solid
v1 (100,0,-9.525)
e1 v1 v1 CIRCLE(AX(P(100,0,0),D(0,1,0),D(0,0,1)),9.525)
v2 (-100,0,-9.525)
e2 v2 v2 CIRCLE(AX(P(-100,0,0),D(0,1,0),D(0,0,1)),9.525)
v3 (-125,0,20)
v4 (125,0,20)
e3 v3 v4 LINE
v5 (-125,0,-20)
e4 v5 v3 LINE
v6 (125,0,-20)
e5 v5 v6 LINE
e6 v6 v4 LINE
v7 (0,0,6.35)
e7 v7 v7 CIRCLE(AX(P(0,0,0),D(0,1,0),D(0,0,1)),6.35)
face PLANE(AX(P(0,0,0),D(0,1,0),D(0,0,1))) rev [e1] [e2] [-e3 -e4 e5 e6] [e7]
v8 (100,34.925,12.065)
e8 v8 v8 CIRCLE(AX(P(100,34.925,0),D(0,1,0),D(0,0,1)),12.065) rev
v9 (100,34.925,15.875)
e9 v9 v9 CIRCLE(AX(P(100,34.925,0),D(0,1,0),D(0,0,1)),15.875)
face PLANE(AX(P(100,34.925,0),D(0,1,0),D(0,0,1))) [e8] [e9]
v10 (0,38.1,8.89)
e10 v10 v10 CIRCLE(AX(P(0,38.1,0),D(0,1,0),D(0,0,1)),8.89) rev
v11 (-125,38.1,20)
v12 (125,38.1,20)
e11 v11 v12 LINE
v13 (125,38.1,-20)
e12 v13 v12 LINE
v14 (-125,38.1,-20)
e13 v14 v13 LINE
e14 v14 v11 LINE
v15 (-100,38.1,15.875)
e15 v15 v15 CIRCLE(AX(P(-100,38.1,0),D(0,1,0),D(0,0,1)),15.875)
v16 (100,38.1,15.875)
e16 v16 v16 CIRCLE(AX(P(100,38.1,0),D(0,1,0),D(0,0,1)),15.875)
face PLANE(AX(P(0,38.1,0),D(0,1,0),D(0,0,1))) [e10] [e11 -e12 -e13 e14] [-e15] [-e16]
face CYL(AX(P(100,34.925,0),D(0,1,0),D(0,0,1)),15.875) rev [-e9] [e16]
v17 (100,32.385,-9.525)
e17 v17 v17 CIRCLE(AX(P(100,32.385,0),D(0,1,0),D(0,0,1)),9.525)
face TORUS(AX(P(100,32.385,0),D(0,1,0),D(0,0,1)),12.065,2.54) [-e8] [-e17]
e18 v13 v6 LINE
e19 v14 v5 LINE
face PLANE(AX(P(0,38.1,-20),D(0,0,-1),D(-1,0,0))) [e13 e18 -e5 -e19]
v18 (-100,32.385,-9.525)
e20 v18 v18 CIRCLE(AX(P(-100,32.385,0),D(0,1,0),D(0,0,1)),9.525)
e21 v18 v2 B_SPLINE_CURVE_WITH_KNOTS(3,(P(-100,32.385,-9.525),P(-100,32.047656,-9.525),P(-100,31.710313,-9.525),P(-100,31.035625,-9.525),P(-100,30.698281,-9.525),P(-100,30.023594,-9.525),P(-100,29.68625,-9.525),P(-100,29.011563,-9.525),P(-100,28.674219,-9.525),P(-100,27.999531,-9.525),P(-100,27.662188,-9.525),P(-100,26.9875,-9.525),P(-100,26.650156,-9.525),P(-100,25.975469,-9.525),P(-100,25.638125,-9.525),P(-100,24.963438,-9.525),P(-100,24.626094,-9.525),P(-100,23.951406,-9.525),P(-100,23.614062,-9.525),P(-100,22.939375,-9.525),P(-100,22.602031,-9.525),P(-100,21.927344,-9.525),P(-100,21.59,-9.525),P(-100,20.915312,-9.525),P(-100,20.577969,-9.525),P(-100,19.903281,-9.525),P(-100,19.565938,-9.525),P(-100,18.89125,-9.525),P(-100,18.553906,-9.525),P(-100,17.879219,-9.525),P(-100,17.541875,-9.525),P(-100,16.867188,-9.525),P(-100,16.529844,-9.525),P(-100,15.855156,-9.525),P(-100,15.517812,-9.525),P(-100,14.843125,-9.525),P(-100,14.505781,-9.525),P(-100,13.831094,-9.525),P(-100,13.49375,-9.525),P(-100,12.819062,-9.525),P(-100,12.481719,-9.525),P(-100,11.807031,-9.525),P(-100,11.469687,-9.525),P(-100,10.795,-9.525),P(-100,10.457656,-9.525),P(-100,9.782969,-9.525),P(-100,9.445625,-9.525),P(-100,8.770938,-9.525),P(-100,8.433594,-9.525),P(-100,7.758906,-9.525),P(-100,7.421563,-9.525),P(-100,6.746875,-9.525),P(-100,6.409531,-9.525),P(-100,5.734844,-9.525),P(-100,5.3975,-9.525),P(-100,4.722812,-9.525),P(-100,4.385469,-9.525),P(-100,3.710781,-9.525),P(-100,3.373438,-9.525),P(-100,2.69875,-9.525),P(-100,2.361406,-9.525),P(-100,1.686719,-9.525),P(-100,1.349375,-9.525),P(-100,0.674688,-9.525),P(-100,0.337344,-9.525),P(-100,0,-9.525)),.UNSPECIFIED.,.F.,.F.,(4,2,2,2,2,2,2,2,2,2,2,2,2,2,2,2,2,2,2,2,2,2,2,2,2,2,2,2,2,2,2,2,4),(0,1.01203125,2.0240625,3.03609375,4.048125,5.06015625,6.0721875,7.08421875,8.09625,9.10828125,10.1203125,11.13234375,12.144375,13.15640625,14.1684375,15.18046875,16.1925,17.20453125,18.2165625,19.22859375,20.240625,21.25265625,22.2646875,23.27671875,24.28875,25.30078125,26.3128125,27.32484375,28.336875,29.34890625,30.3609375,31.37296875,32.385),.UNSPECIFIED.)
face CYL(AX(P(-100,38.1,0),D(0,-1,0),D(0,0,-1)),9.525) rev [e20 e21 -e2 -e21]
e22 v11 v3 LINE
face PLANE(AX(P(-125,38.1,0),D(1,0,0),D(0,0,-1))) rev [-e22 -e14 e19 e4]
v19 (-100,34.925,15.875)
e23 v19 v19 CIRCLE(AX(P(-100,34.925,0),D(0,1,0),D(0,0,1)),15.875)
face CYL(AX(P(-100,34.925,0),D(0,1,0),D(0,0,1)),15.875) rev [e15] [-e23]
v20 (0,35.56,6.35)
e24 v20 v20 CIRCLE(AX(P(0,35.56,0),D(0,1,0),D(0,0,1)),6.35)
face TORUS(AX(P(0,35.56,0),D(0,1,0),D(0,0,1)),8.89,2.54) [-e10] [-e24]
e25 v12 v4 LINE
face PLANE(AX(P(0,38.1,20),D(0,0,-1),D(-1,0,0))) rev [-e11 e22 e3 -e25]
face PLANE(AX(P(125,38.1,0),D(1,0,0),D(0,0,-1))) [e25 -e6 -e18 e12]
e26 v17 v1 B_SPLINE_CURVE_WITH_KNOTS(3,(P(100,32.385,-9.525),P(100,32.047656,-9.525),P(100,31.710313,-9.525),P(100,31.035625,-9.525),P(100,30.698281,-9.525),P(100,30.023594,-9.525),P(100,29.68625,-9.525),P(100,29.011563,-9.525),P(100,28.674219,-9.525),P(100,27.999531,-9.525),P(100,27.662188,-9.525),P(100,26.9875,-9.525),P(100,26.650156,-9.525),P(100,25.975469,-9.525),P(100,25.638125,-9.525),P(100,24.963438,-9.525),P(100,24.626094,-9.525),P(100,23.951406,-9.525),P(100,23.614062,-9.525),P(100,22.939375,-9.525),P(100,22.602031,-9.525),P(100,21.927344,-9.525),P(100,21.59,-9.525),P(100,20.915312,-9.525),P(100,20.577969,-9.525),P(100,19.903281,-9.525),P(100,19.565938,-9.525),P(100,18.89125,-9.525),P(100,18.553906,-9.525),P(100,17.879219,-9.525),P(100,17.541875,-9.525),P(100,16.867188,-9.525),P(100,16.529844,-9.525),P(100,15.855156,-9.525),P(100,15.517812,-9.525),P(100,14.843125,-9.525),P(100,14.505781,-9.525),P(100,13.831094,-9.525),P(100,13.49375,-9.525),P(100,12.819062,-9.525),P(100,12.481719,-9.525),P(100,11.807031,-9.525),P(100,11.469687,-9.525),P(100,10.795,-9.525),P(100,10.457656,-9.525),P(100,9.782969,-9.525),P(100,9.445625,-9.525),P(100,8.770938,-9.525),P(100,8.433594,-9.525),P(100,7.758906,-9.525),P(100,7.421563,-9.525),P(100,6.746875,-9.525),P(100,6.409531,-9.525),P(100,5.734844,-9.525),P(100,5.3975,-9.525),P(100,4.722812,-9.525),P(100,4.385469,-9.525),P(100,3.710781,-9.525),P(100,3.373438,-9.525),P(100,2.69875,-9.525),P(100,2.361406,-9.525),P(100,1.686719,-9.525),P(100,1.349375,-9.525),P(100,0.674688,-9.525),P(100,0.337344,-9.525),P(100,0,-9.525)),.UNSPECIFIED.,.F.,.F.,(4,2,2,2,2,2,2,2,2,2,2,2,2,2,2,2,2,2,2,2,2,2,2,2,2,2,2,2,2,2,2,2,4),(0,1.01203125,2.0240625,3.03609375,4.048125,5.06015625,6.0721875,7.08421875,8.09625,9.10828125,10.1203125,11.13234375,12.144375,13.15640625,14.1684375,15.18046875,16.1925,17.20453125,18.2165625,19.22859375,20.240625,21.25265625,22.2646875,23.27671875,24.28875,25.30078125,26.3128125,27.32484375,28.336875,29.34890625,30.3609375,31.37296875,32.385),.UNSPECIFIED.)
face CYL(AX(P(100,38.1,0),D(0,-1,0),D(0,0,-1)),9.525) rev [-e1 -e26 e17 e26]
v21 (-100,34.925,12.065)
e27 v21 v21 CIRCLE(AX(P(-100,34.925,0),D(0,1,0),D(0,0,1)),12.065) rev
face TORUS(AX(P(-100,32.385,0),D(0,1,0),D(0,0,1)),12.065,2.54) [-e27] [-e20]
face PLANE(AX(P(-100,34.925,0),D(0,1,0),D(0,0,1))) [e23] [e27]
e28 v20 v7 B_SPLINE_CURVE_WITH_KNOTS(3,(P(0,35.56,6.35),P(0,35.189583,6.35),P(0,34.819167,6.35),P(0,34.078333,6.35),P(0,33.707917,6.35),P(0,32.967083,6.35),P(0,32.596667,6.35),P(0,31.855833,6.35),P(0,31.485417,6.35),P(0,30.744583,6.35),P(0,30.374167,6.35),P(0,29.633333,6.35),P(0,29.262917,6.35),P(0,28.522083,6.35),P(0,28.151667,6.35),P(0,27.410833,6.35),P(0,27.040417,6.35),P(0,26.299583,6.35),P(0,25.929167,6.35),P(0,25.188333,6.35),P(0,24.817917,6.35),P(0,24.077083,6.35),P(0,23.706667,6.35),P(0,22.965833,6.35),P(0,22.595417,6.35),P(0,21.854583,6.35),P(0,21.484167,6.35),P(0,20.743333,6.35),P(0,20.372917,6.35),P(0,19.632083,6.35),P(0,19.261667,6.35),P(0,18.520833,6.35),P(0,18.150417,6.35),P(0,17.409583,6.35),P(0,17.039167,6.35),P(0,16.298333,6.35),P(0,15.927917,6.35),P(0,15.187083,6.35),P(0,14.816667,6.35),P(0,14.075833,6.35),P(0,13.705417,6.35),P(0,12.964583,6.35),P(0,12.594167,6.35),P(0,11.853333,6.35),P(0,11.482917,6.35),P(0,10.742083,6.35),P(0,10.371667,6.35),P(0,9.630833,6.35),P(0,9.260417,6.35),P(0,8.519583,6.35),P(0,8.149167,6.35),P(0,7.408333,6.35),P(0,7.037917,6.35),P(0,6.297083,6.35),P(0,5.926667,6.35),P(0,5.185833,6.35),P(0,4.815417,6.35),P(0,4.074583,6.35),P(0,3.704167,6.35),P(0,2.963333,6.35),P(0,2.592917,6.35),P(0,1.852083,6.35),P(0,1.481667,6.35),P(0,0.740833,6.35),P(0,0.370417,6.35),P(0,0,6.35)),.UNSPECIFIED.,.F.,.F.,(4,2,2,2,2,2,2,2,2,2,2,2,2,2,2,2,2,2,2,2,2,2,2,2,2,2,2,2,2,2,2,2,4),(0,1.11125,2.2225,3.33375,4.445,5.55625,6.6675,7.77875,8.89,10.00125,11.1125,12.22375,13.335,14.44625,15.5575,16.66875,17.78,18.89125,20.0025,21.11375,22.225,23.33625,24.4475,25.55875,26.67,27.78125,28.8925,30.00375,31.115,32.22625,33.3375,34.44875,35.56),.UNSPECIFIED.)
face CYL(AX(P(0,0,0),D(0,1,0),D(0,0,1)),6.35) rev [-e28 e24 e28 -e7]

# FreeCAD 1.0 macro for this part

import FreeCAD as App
import Part
import Sketcher
Q = App.Units.Quantity


def edges_at(feature, points):
    """Names of the edges that pass closest to the given points."""
    edges = feature.Shape.Edges
    near = lambda p: min(range(len(edges)), key=lambda i: edges[i].distToShape(Part.Vertex(*p))[0])
    return sorted({f"Edge{near(p) + 1}" for p in points})


def add_polygon(sketch, points):
    """Adds a closed chain of lines whose ends are joined by coincident constraints."""
    first, n = sketch.GeometryCount, len(points)
    for a, b in zip(points, points[1:] + points[:1]):
        sketch.addGeometry(Part.LineSegment(App.Vector(*a, 0), App.Vector(*b, 0)), False)
    for i in range(n):
        sketch.addConstraint(Sketcher.Constraint("Coincident", first + i, 2, first + (i + 1) % n, 1))

doc = App.newDocument("Part")
body = doc.addObject("PartDesign::Body", "Body")

sketch1 = doc.addObject("Sketcher::SketchObject", "Sketch")
body.addObject(sketch1)
sketch1.AttachmentSupport = (doc.XZ_Plane, [""])
sketch1.MapMode = "FlatFace"
add_polygon(sketch1, [(-125, -20), (-125, 20), (125, 20), (125, -20)])
sketch1.addGeometry(Part.Circle(App.Vector(-100, 0, 0), App.Vector(0, 0, 1), 10), False)
sketch1.addGeometry(Part.Circle(App.Vector(100, 0, 0), App.Vector(0, 0, 1), 10), False)
sketch1.addConstraint(Sketcher.Constraint("Vertical", 0))
sketch1.addConstraint(Sketcher.Constraint("Horizontal", 1))
sketch1.addConstraint(Sketcher.Constraint("Vertical", 2))
sketch1.addConstraint(Sketcher.Constraint("Horizontal", 3))
sketch1.addConstraint(Sketcher.Constraint("Equal", 4, 5))
sketch1.addConstraint(Sketcher.Constraint("Symmetric", 4, 3, 5, 3, -1, 1))
sketch1.addConstraint(Sketcher.Constraint("Symmetric", 0, 2, 2, 2, -1, 1))
sketch1.addConstraint(Sketcher.Constraint("PointOnObject", 4, 3, -1))
sketch1.addConstraint(Sketcher.Constraint("Diameter", 4, Q("0.75 in")))
sketch1.addConstraint(Sketcher.Constraint("DistanceX", 1, 1, 1, 2, 250.0))
sketch1.addConstraint(Sketcher.Constraint("DistanceY", 0, 1, 0, 2, 40.0))
sketch1.addConstraint(Sketcher.Constraint("DistanceX", 4, 3, -1, 1, 100.0))
pad1 = doc.addObject("PartDesign::Pad", "Pad")
body.addObject(pad1)
pad1.Profile = sketch1
pad1.Length = Q("1.5 in")
pad1.Reversed = True

sketch2 = doc.addObject("Sketcher::SketchObject", "Sketch001")
body.addObject(sketch2)
sketch2.AttachmentSupport = (doc.XZ_Plane, [""])
sketch2.MapMode = "FlatFace"
sketch2.AttachmentOffset = App.Placement(App.Vector(0, 0, -1.5 * 25.4), App.Rotation())
sketch2.addGeometry(Part.Circle(App.Vector(-100, 0, 0), App.Vector(0, 0, 1), 16), False)
sketch2.addGeometry(Part.Circle(App.Vector(100, 0, 0), App.Vector(0, 0, 1), 16), False)
sketch2.addConstraint(Sketcher.Constraint("Equal", 0, 1))
sketch2.addConstraint(Sketcher.Constraint("Symmetric", 0, 3, 1, 3, -1, 1))
sketch2.addConstraint(Sketcher.Constraint("PointOnObject", 0, 3, -1))
sketch2.addConstraint(Sketcher.Constraint("Diameter", 0, Q("1.25 in")))
sketch2.addConstraint(Sketcher.Constraint("DistanceX", 0, 3, -1, 1, 100.0))
pocket1 = doc.addObject("PartDesign::Pocket", "Pocket")
body.addObject(pocket1)
pocket1.Profile = sketch2
pocket1.Length = Q("0.125 in")
pocket1.Reversed = True

sketch3 = doc.addObject("Sketcher::SketchObject", "Sketch002")
body.addObject(sketch3)
sketch3.AttachmentSupport = (doc.XZ_Plane, [""])
sketch3.MapMode = "FlatFace"
sketch3.AttachmentOffset = App.Placement(App.Vector(0, 0, -1.5 * 25.4), App.Rotation())
sketch3.addGeometry(Part.Circle(App.Vector(0, 0, 0), App.Vector(0, 0, 1), 6), False)
sketch3.addConstraint(Sketcher.Constraint("Coincident", 0, 3, -1, 1))
sketch3.addConstraint(Sketcher.Constraint("Diameter", 0, Q("0.5 in")))
pocket2 = doc.addObject("PartDesign::Pocket", "Pocket001")
body.addObject(pocket2)
pocket2.Profile = sketch3
pocket2.Type = "ThroughAll"
pocket2.Reversed = True
doc.recompute()

fillet = doc.addObject("PartDesign::Fillet", "Fillet")
body.addObject(fillet)
fillet.Base = (pocket2, edges_at(pocket2, [(-100, 34.925, 9.525), (100, 34.925, 9.525), (0, 38.1, -6.35)]))
fillet.Radius = Q("0.1 in")

doc.recompute()
